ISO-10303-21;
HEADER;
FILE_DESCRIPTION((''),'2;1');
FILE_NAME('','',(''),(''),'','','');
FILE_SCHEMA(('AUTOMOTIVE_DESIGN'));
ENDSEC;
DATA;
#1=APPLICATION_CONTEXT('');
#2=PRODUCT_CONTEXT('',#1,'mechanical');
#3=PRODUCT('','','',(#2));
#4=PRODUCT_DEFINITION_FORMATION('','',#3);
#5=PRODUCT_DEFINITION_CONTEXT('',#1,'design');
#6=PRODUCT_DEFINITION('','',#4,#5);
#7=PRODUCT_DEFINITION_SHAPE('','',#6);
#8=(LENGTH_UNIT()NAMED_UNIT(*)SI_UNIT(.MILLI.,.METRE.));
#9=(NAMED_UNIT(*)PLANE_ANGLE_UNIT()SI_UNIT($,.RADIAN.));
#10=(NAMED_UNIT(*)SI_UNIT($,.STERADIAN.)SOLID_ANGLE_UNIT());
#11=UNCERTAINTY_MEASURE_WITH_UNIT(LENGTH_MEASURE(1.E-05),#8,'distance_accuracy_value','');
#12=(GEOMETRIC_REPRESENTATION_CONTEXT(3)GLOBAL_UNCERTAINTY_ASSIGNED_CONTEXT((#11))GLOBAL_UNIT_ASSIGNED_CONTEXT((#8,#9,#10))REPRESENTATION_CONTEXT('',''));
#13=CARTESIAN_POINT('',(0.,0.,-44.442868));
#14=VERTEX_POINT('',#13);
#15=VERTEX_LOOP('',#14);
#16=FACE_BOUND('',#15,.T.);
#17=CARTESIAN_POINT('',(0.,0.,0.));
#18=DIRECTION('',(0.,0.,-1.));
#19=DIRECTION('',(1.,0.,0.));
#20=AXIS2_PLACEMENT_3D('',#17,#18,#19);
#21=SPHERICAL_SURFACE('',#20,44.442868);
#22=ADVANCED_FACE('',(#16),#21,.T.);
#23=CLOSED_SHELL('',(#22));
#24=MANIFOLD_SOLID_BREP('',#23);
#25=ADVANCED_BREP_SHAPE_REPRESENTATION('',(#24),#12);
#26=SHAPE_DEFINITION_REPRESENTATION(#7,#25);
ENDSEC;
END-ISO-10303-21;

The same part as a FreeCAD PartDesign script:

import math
import FreeCAD as App
import Part
import Sketcher
from FreeCAD import Vector
Q = App.Units.Quantity

doc = App.newDocument("Part")
body = doc.addObject("PartDesign::Body", "Body")

# Sketch on XZ plane
sketch1 = body.newObject("Sketcher::SketchObject", "Sketch")
sketch1.AttachmentSupport = (doc.getObject("XZ_Plane"), [""])
sketch1.MapMode = "FlatFace"
sketch1.addGeometry([
    Part.LineSegment(Vector(0, -44.442868, 0), Vector(0, 44.442868, 0)),
    Part.ArcOfCircle(Part.Circle(Vector(0, 0, 0), Vector(0, 0, 1), 44.442868), math.radians(-90), math.radians(90)),
], False)
sketch1.addConstraint([
    Sketcher.Constraint("Coincident", 0, 1, 1, 1),
    Sketcher.Constraint("Coincident", 1, 2, 0, 2),
    Sketcher.Constraint("Vertical", 0),
    Sketcher.Constraint("Coincident", 1, 3, -1, 1),
    Sketcher.Constraint("PointOnObject", 0, 1, -2),
    Sketcher.Constraint("Radius", 1, Q("44.442868 mm")),
])
revolution = body.newObject("PartDesign::Revolution", "Revolution")
revolution.Profile = sketch1
revolution.ReferenceAxis = (sketch1, ["V_Axis"])
revolution.Angle = 360

doc.recompute()
